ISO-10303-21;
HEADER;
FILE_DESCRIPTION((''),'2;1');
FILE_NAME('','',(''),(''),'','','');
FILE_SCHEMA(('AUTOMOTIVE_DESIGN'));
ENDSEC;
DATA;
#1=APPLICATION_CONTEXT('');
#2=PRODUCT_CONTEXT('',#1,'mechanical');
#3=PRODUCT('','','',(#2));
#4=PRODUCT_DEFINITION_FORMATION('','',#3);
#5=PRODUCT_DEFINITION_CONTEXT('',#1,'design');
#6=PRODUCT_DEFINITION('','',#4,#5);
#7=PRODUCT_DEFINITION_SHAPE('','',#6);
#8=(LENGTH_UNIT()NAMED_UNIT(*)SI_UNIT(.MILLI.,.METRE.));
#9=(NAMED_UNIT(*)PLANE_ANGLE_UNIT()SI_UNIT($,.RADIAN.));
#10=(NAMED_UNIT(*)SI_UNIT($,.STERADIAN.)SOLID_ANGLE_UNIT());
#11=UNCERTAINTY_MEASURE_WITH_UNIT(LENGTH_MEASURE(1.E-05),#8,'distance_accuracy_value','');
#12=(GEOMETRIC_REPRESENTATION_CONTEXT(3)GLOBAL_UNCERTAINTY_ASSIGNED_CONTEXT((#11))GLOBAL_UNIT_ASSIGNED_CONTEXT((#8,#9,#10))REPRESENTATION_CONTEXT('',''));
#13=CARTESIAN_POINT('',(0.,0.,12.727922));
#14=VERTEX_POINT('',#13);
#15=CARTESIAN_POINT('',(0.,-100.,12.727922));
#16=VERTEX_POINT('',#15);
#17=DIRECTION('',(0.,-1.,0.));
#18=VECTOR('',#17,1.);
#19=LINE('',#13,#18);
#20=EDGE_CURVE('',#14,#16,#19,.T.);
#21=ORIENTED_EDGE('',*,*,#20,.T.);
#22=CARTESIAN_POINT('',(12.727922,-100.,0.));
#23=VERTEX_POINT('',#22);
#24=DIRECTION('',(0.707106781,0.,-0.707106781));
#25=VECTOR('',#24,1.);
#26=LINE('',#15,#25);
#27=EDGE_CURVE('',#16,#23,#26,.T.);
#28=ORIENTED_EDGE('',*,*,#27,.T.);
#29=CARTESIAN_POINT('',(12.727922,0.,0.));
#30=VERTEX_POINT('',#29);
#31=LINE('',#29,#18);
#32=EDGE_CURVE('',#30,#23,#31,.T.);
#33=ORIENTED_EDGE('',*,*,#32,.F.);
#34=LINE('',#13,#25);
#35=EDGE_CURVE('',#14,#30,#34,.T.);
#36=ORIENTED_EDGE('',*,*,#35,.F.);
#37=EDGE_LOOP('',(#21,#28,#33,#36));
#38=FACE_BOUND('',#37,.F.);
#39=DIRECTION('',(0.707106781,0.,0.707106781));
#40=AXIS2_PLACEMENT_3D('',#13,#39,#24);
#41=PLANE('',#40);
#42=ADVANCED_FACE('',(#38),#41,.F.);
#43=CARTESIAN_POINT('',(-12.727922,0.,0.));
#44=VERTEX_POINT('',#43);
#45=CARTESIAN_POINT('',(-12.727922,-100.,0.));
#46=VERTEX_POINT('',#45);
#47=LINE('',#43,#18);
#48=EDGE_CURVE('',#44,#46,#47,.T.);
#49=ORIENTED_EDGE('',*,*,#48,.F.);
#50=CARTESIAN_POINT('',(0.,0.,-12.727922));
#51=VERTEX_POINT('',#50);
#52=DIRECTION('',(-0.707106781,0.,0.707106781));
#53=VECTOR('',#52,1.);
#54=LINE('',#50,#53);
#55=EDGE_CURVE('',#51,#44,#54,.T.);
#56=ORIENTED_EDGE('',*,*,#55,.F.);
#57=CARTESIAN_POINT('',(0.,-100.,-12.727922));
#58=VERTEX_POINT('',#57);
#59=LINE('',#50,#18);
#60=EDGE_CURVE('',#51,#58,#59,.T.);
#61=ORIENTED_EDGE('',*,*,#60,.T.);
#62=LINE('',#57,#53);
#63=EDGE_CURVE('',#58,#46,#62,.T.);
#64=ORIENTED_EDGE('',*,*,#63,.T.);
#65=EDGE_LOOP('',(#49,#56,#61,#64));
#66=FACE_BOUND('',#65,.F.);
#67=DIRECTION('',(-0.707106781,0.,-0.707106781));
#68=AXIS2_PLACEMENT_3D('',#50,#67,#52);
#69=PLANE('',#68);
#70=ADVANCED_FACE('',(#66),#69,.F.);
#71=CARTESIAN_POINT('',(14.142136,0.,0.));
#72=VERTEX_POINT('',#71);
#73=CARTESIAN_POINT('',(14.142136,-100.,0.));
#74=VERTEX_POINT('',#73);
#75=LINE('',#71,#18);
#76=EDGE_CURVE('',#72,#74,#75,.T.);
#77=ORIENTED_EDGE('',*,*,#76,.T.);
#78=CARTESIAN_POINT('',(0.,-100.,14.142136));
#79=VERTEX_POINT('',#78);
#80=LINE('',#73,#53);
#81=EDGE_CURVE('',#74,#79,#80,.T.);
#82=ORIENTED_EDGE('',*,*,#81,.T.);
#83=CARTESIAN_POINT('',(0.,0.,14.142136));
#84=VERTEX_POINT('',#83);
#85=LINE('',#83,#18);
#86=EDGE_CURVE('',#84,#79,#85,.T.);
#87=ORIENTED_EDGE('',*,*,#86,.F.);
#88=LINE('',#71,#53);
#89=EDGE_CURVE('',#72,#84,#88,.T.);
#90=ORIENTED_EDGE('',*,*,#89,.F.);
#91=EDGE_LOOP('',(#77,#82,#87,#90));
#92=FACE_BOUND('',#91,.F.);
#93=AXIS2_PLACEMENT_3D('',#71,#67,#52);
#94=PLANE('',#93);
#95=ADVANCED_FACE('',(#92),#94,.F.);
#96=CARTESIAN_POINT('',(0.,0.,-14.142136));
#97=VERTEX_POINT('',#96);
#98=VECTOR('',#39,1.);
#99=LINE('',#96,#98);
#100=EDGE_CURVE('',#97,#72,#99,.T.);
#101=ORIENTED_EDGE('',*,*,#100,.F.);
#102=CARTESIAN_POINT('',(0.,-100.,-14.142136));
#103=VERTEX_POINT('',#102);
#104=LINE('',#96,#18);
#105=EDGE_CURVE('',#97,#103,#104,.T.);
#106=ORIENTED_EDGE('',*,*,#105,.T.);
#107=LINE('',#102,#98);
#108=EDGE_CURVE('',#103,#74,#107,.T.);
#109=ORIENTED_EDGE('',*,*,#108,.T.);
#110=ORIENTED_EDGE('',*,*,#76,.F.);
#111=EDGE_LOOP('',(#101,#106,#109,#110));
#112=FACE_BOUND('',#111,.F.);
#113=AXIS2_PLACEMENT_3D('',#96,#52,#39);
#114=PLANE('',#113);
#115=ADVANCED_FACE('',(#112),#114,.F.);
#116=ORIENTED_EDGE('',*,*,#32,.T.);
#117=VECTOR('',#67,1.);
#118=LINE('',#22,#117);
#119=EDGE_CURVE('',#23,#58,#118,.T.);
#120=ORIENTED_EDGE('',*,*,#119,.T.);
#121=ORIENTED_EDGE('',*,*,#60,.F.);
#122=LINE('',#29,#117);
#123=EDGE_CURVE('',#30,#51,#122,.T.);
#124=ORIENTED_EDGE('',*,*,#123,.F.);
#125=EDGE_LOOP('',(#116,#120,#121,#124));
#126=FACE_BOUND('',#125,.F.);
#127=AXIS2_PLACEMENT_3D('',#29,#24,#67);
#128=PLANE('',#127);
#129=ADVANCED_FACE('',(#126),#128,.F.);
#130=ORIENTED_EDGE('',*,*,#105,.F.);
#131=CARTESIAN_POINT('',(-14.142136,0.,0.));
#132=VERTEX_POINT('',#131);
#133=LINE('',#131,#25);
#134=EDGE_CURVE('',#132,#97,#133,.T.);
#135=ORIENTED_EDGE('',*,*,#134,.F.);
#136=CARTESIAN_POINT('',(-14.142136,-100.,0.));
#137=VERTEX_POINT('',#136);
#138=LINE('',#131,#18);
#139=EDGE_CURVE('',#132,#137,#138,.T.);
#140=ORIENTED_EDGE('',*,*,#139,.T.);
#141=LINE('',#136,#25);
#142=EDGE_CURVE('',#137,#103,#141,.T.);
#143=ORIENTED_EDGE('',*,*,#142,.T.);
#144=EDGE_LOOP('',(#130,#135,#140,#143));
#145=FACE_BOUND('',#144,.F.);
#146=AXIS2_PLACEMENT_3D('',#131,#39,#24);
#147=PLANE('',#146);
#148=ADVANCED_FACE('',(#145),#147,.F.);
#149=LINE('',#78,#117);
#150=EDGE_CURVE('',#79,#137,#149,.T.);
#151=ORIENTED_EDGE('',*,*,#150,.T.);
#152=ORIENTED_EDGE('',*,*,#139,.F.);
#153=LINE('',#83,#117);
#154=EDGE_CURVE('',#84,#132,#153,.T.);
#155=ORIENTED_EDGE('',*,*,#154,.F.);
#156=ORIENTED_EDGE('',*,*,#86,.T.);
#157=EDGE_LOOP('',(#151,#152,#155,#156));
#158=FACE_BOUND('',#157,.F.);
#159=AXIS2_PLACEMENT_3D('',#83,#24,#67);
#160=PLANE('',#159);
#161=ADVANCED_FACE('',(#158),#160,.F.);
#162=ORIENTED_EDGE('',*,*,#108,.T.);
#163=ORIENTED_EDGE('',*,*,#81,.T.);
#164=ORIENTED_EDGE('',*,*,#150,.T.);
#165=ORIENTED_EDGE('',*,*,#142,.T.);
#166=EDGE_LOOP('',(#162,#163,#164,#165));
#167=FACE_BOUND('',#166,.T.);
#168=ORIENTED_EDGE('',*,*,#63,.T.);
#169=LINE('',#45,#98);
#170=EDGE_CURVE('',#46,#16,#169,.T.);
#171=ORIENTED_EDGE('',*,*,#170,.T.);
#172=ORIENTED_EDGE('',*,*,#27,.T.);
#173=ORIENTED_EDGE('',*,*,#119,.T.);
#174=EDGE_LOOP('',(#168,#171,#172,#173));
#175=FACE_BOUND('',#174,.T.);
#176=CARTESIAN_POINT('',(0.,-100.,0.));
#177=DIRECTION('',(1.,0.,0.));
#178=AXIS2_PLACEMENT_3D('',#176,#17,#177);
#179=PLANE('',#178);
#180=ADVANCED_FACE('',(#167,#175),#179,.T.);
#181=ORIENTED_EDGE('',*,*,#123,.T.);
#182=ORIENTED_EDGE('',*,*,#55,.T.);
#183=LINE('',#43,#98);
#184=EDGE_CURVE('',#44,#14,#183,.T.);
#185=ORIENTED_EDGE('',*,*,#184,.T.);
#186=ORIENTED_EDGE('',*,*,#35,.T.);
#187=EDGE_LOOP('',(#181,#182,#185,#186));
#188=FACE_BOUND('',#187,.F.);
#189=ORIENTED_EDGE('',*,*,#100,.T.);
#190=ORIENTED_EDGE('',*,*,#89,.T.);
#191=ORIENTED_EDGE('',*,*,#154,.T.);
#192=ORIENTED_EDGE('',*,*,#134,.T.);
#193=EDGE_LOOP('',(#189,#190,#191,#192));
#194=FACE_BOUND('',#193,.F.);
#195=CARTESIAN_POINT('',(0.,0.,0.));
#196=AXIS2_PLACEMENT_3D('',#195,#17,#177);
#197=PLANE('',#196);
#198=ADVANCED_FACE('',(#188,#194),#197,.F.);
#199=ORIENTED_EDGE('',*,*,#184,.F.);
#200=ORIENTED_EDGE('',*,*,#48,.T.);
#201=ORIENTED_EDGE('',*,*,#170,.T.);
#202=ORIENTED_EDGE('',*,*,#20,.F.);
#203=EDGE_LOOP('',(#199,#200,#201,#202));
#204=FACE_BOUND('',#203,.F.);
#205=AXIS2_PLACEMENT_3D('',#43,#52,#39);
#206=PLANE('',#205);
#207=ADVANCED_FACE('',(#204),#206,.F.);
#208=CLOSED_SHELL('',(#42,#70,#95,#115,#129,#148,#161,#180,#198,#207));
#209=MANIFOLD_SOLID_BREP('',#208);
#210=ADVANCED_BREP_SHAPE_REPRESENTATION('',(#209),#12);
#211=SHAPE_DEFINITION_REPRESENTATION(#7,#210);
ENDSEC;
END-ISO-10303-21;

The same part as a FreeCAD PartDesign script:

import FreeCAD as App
import Part
import Sketcher

doc = App.newDocument("Part")
body = doc.addObject("PartDesign::Body", "Body")

sketch1 = body.newObject("Sketcher::SketchObject", "Sketch")
sketch1.AttachmentSupport = (doc.getObject("XZ_Plane"), [""])
sketch1.MapMode = "FlatFace"
sketch1.addGeometry([
    Part.LineSegment(App.Vector(14, 0, 0), App.Vector(0, 14, 0)),
    Part.LineSegment(App.Vector(0, 14, 0), App.Vector(-14, 0, 0)),
    Part.LineSegment(App.Vector(-14, 0, 0), App.Vector(0, -14, 0)),
    Part.LineSegment(App.Vector(0, -14, 0), App.Vector(14, 0, 0)),
    Part.LineSegment(App.Vector(-13, 0, 0), App.Vector(0, 13, 0)),
    Part.LineSegment(App.Vector(0, 13, 0), App.Vector(13, 0, 0)),
    Part.LineSegment(App.Vector(13, 0, 0), App.Vector(0, -13, 0)),
    Part.LineSegment(App.Vector(0, -13, 0), App.Vector(-13, 0, 0)),
], False)
sketch1.addConstraint([
    Sketcher.Constraint("Coincident", 0, 2, 1, 1),
    Sketcher.Constraint("Coincident", 1, 2, 2, 1),
    Sketcher.Constraint("Coincident", 2, 2, 3, 1),
    Sketcher.Constraint("Coincident", 3, 2, 0, 1),
    Sketcher.Constraint("Coincident", 4, 2, 5, 1),
    Sketcher.Constraint("Coincident", 5, 2, 6, 1),
    Sketcher.Constraint("Coincident", 6, 2, 7, 1),
    Sketcher.Constraint("Coincident", 7, 2, 4, 1),
    Sketcher.Constraint("Symmetric", 0, 2, 2, 2, -1, 1),
    Sketcher.Constraint("Symmetric", 1, 2, 3, 2, -1, 1),
    Sketcher.Constraint("Symmetric", 4, 2, 6, 2, -1, 1),
    Sketcher.Constraint("Symmetric", 5, 2, 7, 2, -1, 1),
    Sketcher.Constraint("PointOnObject", 0, 2, -2),
    Sketcher.Constraint("PointOnObject", 1, 2, -1),
    Sketcher.Constraint("PointOnObject", 4, 2, -2),
    Sketcher.Constraint("PointOnObject", 5, 2, -1),
    Sketcher.Constraint("Perpendicular", 0, 1),
    Sketcher.Constraint("Parallel", 3, 4),
    Sketcher.Constraint("Distance", 0, 20.000001),
    Sketcher.Constraint("Distance", 4, 18.0),
])
pad1 = body.newObject("PartDesign::Pad", "Pad")
pad1.Profile = sketch1
pad1.Length = 100

doc.recompute()
